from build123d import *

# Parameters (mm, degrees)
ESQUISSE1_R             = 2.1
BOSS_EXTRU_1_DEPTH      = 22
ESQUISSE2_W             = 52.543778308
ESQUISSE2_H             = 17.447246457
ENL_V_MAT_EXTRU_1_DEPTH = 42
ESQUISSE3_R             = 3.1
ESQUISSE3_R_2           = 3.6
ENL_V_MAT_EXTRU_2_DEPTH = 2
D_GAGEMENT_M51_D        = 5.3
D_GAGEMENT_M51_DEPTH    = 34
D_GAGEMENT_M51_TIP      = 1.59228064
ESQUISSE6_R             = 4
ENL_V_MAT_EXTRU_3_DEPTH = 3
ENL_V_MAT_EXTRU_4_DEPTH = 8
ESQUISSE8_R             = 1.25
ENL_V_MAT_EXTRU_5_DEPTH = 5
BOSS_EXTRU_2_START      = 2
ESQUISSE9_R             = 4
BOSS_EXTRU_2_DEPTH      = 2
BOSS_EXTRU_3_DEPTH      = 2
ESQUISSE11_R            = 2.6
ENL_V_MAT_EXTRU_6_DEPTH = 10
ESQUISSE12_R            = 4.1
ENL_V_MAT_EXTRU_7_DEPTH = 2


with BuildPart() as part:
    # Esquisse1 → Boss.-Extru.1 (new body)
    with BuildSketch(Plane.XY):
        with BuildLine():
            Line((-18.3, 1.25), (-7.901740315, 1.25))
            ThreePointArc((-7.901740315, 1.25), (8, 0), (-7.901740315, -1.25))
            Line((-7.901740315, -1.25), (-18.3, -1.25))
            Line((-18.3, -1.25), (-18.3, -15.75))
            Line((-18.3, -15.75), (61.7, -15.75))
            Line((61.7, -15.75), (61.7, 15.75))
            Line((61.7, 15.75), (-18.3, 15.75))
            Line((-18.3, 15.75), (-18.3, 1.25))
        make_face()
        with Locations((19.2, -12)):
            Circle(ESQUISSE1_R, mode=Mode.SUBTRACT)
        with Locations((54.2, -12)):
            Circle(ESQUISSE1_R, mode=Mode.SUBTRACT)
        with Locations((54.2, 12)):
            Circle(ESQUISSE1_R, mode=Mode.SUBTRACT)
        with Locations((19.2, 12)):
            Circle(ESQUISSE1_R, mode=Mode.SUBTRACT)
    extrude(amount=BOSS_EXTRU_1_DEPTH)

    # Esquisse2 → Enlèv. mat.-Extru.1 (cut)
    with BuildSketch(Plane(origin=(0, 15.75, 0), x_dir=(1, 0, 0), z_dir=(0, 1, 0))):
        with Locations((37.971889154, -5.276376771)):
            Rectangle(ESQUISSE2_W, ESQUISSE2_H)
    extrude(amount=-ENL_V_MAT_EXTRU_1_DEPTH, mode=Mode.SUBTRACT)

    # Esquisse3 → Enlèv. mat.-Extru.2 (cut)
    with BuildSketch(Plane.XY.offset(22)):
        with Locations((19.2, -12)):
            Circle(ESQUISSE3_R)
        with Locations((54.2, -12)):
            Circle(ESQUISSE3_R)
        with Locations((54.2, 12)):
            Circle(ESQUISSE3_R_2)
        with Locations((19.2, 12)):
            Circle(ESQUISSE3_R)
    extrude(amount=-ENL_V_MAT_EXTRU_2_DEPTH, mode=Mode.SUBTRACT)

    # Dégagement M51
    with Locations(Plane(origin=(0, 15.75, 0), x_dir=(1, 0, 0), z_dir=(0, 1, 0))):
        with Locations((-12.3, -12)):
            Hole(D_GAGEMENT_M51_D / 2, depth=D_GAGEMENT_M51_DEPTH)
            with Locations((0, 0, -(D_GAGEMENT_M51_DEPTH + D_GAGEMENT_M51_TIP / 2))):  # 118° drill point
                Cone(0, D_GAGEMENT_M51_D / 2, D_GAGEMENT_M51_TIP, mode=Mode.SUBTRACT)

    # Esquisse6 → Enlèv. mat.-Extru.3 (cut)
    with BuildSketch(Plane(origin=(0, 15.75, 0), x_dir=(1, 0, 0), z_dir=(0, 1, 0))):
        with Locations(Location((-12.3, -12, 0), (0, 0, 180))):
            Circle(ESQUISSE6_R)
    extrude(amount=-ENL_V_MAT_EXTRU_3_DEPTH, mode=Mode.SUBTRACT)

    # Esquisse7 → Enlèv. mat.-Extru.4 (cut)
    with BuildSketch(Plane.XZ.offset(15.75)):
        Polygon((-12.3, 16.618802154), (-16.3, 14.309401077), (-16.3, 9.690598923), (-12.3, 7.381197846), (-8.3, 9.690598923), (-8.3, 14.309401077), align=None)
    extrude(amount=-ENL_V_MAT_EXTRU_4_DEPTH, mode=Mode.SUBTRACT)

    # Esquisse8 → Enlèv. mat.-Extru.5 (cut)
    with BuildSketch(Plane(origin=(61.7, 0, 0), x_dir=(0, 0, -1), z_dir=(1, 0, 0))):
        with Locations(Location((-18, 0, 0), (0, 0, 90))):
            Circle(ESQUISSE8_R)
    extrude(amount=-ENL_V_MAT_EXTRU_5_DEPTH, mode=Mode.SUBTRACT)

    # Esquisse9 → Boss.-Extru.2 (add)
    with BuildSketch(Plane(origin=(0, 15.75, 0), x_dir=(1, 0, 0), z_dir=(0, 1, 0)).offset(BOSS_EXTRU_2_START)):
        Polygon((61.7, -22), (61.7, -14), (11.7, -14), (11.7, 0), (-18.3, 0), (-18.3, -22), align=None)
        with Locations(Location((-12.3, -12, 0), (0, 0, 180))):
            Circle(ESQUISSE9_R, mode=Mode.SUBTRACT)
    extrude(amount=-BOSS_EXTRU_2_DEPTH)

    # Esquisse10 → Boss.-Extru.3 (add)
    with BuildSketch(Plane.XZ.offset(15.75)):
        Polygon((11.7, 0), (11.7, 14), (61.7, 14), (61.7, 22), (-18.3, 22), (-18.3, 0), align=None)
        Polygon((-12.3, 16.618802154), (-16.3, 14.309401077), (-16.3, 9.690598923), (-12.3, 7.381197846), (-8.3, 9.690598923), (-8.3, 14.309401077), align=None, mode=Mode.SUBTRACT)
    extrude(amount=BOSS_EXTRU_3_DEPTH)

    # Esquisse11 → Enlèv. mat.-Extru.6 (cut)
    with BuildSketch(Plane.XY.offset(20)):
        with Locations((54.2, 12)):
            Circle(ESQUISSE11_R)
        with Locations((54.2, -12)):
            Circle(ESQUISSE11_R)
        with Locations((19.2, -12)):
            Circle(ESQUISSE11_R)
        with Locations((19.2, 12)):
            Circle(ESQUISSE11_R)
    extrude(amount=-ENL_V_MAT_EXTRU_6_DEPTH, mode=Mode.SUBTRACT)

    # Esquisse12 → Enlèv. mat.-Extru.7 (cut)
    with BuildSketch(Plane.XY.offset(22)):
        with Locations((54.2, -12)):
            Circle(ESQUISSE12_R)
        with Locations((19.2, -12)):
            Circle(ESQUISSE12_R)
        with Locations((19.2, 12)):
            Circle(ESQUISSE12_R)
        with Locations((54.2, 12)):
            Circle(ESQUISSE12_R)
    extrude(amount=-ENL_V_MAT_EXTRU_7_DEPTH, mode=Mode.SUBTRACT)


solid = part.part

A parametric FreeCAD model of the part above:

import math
import FreeCAD as App
import Part
import Sketcher
from FreeCAD import Vector
Q = App.Units.Quantity

doc = App.newDocument("Part")
params = doc.addObject("Spreadsheet::Sheet", "Params")
for row, (alias, value) in enumerate([
    ("sketch1_radius", "8 mm"),
    ("sketch1_diameter", "4.2 mm"),
    ("sketch1_width", "80 mm"),
    ("sketch1_height", "14.5 mm"),
    ("sketch1_height2", "31.5 mm"),
    ("pad1_length", "22 mm"),
    ("pocket1_length", "42 mm"),
    ("sketch3_diameter", "6.2 mm"),
    ("sketch3_diameter2", "7.2 mm"),
    ("pocket2_length", "2 mm"),
    ("sketch4_diameter", "5.3 mm"),
    ("hole_diameter", "5.3 mm"),
    ("hole_depth", "34 mm"),
    ("sketch5_diameter", "8 mm"),
    ("pocket3_length", "3 mm"),
    ("pocket4_length", "8 mm"),
    ("sketch7_diameter", "2.5 mm"),
    ("pocket5_length", "5 mm"),
    ("sketch8_diameter", "8 mm"),
    ("sketch8_width", "50 mm"),
    ("sketch8_width2", "30 mm"),
    ("sketch8_height", "8 mm"),
    ("sketch8_height2", "14 mm"),
    ("pad2_length", "2 mm"),
    ("sketch9_width", "50 mm"),
    ("sketch9_width2", "80 mm"),
    ("sketch9_height", "14 mm"),
    ("sketch9_height2", "8 mm"),
    ("pad3_length", "2 mm"),
    ("sketch10_diameter", "5.2 mm"),
    ("pocket6_length", "10 mm"),
    ("sketch11_diameter", "8.2 mm"),
    ("pocket7_length", "2 mm"),
], start=1):
    params.set(f"A{row}", alias)
    params.set(f"B{row}", "=" + value)
    params.setAlias(f"B{row}", alias)

body = doc.addObject("PartDesign::Body", "Body")

# Sketch on XY plane
sketch1 = body.newObject("Sketcher::SketchObject", "Sketch")
sketch1.AttachmentSupport = (doc.getObject("XY_Plane"), [""])
sketch1.MapMode = "FlatFace"
sketch1.addGeometry([
    Part.LineSegment(Vector(-18.3, 1.2, 0), Vector(-7.9, 1.2, 0)),  # 0
    Part.ArcOfCircle(Part.Circle(Vector(0, 0, 0), Vector(0, 0, 1), 8), math.radians(-171), math.radians(171)),  # 1
    Part.LineSegment(Vector(-7.9, -1.2, 0), Vector(-18.3, -1.2, 0)),  # 2
    Part.LineSegment(Vector(-18.3, -1.2, 0), Vector(-18.3, -15.8, 0)),  # 3
    Part.LineSegment(Vector(-18.3, -15.8, 0), Vector(61.7, -15.8, 0)),  # 4
    Part.LineSegment(Vector(61.7, -15.8, 0), Vector(61.7, 15.8, 0)),  # 5
    Part.LineSegment(Vector(61.7, 15.8, 0), Vector(-18.3, 15.8, 0)),  # 6
    Part.LineSegment(Vector(-18.3, 15.8, 0), Vector(-18.3, 1.2, 0)),  # 7
    Part.Circle(Vector(19.2, -12, 0), Vector(0, 0, 1), 2.1),  # 8
    Part.Circle(Vector(54.2, -12, 0), Vector(0, 0, 1), 2.1),  # 9
    Part.Circle(Vector(19.2, 12, 0), Vector(0, 0, 1), 2.1),  # 10
    Part.Circle(Vector(54.2, 12, 0), Vector(0, 0, 1), 2.1),  # 11
], False)
sketch1.addConstraint([
    Sketcher.Constraint("Coincident", 0, 2, 1, 2),
    Sketcher.Constraint("Coincident", 1, 1, 2, 1),
    Sketcher.Constraint("Coincident", 2, 2, 3, 1),
    Sketcher.Constraint("Coincident", 3, 2, 4, 1),
    Sketcher.Constraint("Coincident", 4, 2, 5, 1),
    Sketcher.Constraint("Coincident", 5, 2, 6, 1),
    Sketcher.Constraint("Coincident", 6, 2, 7, 1),
    Sketcher.Constraint("Coincident", 7, 2, 0, 1),
    Sketcher.Constraint("Horizontal", 0),
    Sketcher.Constraint("Horizontal", 2),
    Sketcher.Constraint("Vertical", 3),
    Sketcher.Constraint("Horizontal", 4),
    Sketcher.Constraint("Vertical", 5),
    Sketcher.Constraint("Horizontal", 6),
    Sketcher.Constraint("Vertical", 7),
    Sketcher.Constraint("Coincident", 1, 3, -1, 1),
    Sketcher.Constraint("Equal", 8, 9),
    Sketcher.Constraint("Equal", 9, 10),
    Sketcher.Constraint("Equal", 10, 11),
    Sketcher.Constraint("Symmetric", 8, 3, 10, 3, -1),
    Sketcher.Constraint("Symmetric", 9, 3, 11, 3, -1),
    Sketcher.Constraint("Symmetric", 3, 2, 6, 2, -1),
    Sketcher.Constraint("Horizontal", 8, 3, 9, 3),
    Sketcher.Constraint("Vertical", 0, 2, 1, 1),
    Sketcher.Constraint("Radius", 1, 8.0),
    Sketcher.Constraint("Diameter", 8, 4.2),
    Sketcher.Constraint("DistanceX", 4, 1, 4, 2, 80.0),
    Sketcher.Constraint("DistanceY", 3, 2, 3, 1, 14.5),
    Sketcher.Constraint("DistanceY", 5, 1, 5, 2, 31.5),
    Sketcher.Constraint("DistanceY", 8, 3, -1, 1, 12.0),
    Sketcher.Constraint("DistanceX", 8, 3, 9, 3, 35.0),
    Sketcher.Constraint("DistanceX", -1, 1, 8, 3, 19.2),
    Sketcher.Constraint("DistanceX", 2, 2, -1, 1, 18.3),
])
sketch1.setExpression("Constraints[24]", "Params.sketch1_radius")
sketch1.setExpression("Constraints[25]", "Params.sketch1_diameter")
sketch1.setExpression("Constraints[26]", "Params.sketch1_width")
sketch1.setExpression("Constraints[27]", "Params.sketch1_height")
sketch1.setExpression("Constraints[28]", "Params.sketch1_height2")
pad1 = body.newObject("PartDesign::Pad", "Pad")
pad1.Profile = sketch1
pad1.setExpression("Length", "Params.pad1_length")

# Sketch on XZ plane
sketch2 = body.newObject("Sketcher::SketchObject", "Sketch001")
sketch2.AttachmentSupport = (doc.getObject("XZ_Plane"), [""])
sketch2.MapMode = "FlatFace"
sketch2.AttachmentOffset = App.Placement(Vector(0, 0, -15.75), App.Rotation())
sketch2.addGeometry([
    Part.LineSegment(Vector(12, -3, 0), Vector(12, 14, 0)),
    Part.LineSegment(Vector(12, 14, 0), Vector(64, 14, 0)),
    Part.LineSegment(Vector(64, 14, 0), Vector(64, -3, 0)),
    Part.LineSegment(Vector(64, -3, 0), Vector(12, -3, 0)),
], False)
sketch2.addConstraint([
    Sketcher.Constraint("Coincident", 0, 2, 1, 1),
    Sketcher.Constraint("Coincident", 1, 2, 2, 1),
    Sketcher.Constraint("Coincident", 2, 2, 3, 1),
    Sketcher.Constraint("Coincident", 3, 2, 0, 1),
    Sketcher.Constraint("Vertical", 0),
    Sketcher.Constraint("Horizontal", 1),
    Sketcher.Constraint("Vertical", 2),
    Sketcher.Constraint("Horizontal", 3),
    Sketcher.Constraint("DistanceY", -1, 1, 0, 2, 14.0),
    Sketcher.Constraint("DistanceX", -1, 1, 0, 2, 11.7),
    Sketcher.Constraint("DistanceX", 1, 1, 1, 2, 52.543778),
    Sketcher.Constraint("DistanceY", 0, 1, 0, 2, 17.447246),
])
pocket1 = body.newObject("PartDesign::Pocket", "Pocket")
pocket1.Profile = sketch2
pocket1.setExpression("Length", "Params.pocket1_length")
pocket1.Reversed = True

# Sketch on XY plane
sketch3 = body.newObject("Sketcher::SketchObject", "Sketch002")
sketch3.AttachmentSupport = (doc.getObject("XY_Plane"), [""])
sketch3.MapMode = "FlatFace"
sketch3.AttachmentOffset = App.Placement(Vector(0, 0, 22), App.Rotation())
sketch3.addGeometry([
    Part.Circle(Vector(19.2, -12, 0), Vector(0, 0, 1), 3.1),
    Part.Circle(Vector(54.2, -12, 0), Vector(0, 0, 1), 3.1),
    Part.Circle(Vector(54.2, 12, 0), Vector(0, 0, 1), 3.6),
    Part.Circle(Vector(19.2, 12, 0), Vector(0, 0, 1), 3.1),
], False)
sketch3.addConstraint([
    Sketcher.Constraint("Equal", 0, 1),
    Sketcher.Constraint("Equal", 1, 3),
    Sketcher.Constraint("Symmetric", 1, 3, 2, 3, -1),
    Sketcher.Constraint("Symmetric", 0, 3, 3, 3, -1),
    Sketcher.Constraint("Horizontal", 0, 3, 1, 3),
    Sketcher.Constraint("Diameter", 0, 6.2),
    Sketcher.Constraint("Diameter", 2, 7.2),
    Sketcher.Constraint("DistanceY", 0, 3, -1, 1, 12.0),
    Sketcher.Constraint("DistanceX", 0, 3, 1, 3, 35.0),
    Sketcher.Constraint("DistanceX", -1, 1, 0, 3, 19.2),
])
sketch3.setExpression("Constraints[5]", "Params.sketch3_diameter")
sketch3.setExpression("Constraints[6]", "Params.sketch3_diameter2")
pocket2 = body.newObject("PartDesign::Pocket", "Pocket001")
pocket2.Profile = sketch3
pocket2.setExpression("Length", "Params.pocket2_length")

# Sketch on XZ plane
sketch4 = body.newObject("Sketcher::SketchObject", "Sketch003")
sketch4.AttachmentSupport = (doc.getObject("XZ_Plane"), [""])
sketch4.MapMode = "FlatFace"
sketch4.AttachmentOffset = App.Placement(Vector(0, 0, -15.75), App.Rotation())
sketch4.addGeometry(Part.Circle(Vector(-12.3, 12, 0), Vector(0, 0, 1), 2.6), False)
sketch4.addConstraint([
    Sketcher.Constraint("Diameter", 0, 5.3),
    Sketcher.Constraint("DistanceY", -1, 1, 0, 3, 12.0),
    Sketcher.Constraint("DistanceX", 0, 3, -1, 1, 12.3),
])
sketch4.setExpression("Constraints[0]", "Params.sketch4_diameter")
doc.recompute()
hole = body.newObject("PartDesign::Hole", "Hole")
hole.Profile = sketch4
hole.ThreadType = "None"
hole.setExpression("Diameter", "Params.hole_diameter")
hole.DepthType = "Dimension"
hole.setExpression("Depth", "Params.hole_depth")
hole.DrillPoint = "Angled"
hole.DrillPointAngle = 118
hole.Reversed = True

# Sketch on XZ plane
sketch5 = body.newObject("Sketcher::SketchObject", "Sketch004")
sketch5.AttachmentSupport = (doc.getObject("XZ_Plane"), [""])
sketch5.MapMode = "FlatFace"
sketch5.AttachmentOffset = App.Placement(Vector(0, 0, -15.75), App.Rotation())
sketch5.addGeometry(Part.Circle(Vector(-12.3, 12, 0), Vector(0, 0, 1), 4), False)
sketch5.addConstraint([
    Sketcher.Constraint("Diameter", 0, 8.0),
    Sketcher.Constraint("DistanceY", -1, 1, 0, 3, 12.0),
    Sketcher.Constraint("DistanceX", 0, 3, -1, 1, 12.3),
])
sketch5.setExpression("Constraints[0]", "Params.sketch5_diameter")
pocket3 = body.newObject("PartDesign::Pocket", "Pocket002")
pocket3.Profile = sketch5
pocket3.setExpression("Length", "Params.pocket3_length")
pocket3.Reversed = True

# Sketch on XZ plane
sketch6 = body.newObject("Sketcher::SketchObject", "Sketch005")
sketch6.AttachmentSupport = (doc.getObject("XZ_Plane"), [""])
sketch6.MapMode = "FlatFace"
sketch6.AttachmentOffset = App.Placement(Vector(0, 0, 15.75), App.Rotation())
sketch6.addGeometry([
    Part.LineSegment(Vector(-12.3, 16.6, 0), Vector(-16.3, 14.3, 0)),  # 0
    Part.LineSegment(Vector(-16.3, 14.3, 0), Vector(-16.3, 9.7, 0)),  # 1
    Part.LineSegment(Vector(-16.3, 9.7, 0), Vector(-12.3, 7.4, 0)),  # 2
    Part.LineSegment(Vector(-12.3, 7.4, 0), Vector(-8.3, 9.7, 0)),  # 3
    Part.LineSegment(Vector(-8.3, 9.7, 0), Vector(-8.3, 14.3, 0)),  # 4
    Part.LineSegment(Vector(-8.3, 14.3, 0), Vector(-12.3, 16.6, 0)),  # 5
], False)
sketch6.addConstraint([
    Sketcher.Constraint("Coincident", 0, 2, 1, 1),
    Sketcher.Constraint("Coincident", 1, 2, 2, 1),
    Sketcher.Constraint("Coincident", 2, 2, 3, 1),
    Sketcher.Constraint("Coincident", 3, 2, 4, 1),
    Sketcher.Constraint("Coincident", 4, 2, 5, 1),
    Sketcher.Constraint("Coincident", 5, 2, 0, 1),
    Sketcher.Constraint("Vertical", 1),
    Sketcher.Constraint("Vertical", 4),
    Sketcher.Constraint("Parallel", 0, 3),
    Sketcher.Constraint("Parallel", 2, 5),
    Sketcher.Constraint("Horizontal", 1, 2, 3, 2),
    Sketcher.Constraint("Horizontal", 0, 2, 4, 2),
    Sketcher.Constraint("Vertical", 2, 2, 5, 2),
    Sketcher.Constraint("Angle", 0, Q("-150 deg")),
    Sketcher.Constraint("DistanceX", 1, 2, 2, 2, 4.0),
    Sketcher.Constraint("DistanceX", 0, 2, -1, 1, 16.3),
    Sketcher.Constraint("DistanceY", -1, 1, 0, 2, 14.309401),
    Sketcher.Constraint("DistanceY", -1, 1, 1, 2, 9.690599),
])
pocket4 = body.newObject("PartDesign::Pocket", "Pocket003")
pocket4.Profile = sketch6
pocket4.setExpression("Length", "Params.pocket4_length")

# Sketch on YZ plane
sketch7 = body.newObject("Sketcher::SketchObject", "Sketch006")
sketch7.AttachmentSupport = (doc.getObject("YZ_Plane"), [""])
sketch7.MapMode = "FlatFace"
sketch7.AttachmentOffset = App.Placement(Vector(0, 0, 61.7), App.Rotation())
sketch7.addGeometry(Part.Circle(Vector(0, 18, 0), Vector(0, 0, 1), 1.2), False)
sketch7.addConstraint([
    Sketcher.Constraint("PointOnObject", 0, 3, -2),
    Sketcher.Constraint("Diameter", 0, 2.5),
    Sketcher.Constraint("DistanceY", -1, 1, 0, 3, 18.0),
])
sketch7.setExpression("Constraints[1]", "Params.sketch7_diameter")
pocket5 = body.newObject("PartDesign::Pocket", "Pocket004")
pocket5.Profile = sketch7
pocket5.setExpression("Length", "Params.pocket5_length")

# Sketch on XZ plane
sketch8 = body.newObject("Sketcher::SketchObject", "Sketch007")
sketch8.AttachmentSupport = (doc.getObject("XZ_Plane"), [""])
sketch8.MapMode = "FlatFace"
sketch8.AttachmentOffset = App.Placement(Vector(0, 0, -17.75), App.Rotation())
sketch8.addGeometry([
    Part.LineSegment(Vector(61.7, 22, 0), Vector(61.7, 14, 0)),  # 0
    Part.LineSegment(Vector(61.7, 14, 0), Vector(11.7, 14, 0)),  # 1
    Part.LineSegment(Vector(11.7, 14, 0), Vector(11.7, 0, 0)),  # 2
    Part.LineSegment(Vector(11.7, 0, 0), Vector(-18.3, 0, 0)),  # 3
    Part.LineSegment(Vector(-18.3, 0, 0), Vector(-18.3, 22, 0)),  # 4
    Part.LineSegment(Vector(-18.3, 22, 0), Vector(61.7, 22, 0)),  # 5
    Part.Circle(Vector(-12.3, 12, 0), Vector(0, 0, 1), 4),  # 6
], False)
sketch8.addConstraint([
    Sketcher.Constraint("Coincident", 0, 2, 1, 1),
    Sketcher.Constraint("Coincident", 1, 2, 2, 1),
    Sketcher.Constraint("Coincident", 2, 2, 3, 1),
    Sketcher.Constraint("Coincident", 3, 2, 4, 1),
    Sketcher.Constraint("Coincident", 4, 2, 5, 1),
    Sketcher.Constraint("Coincident", 5, 2, 0, 1),
    Sketcher.Constraint("Vertical", 0),
    Sketcher.Constraint("Horizontal", 1),
    Sketcher.Constraint("Vertical", 2),
    Sketcher.Constraint("Horizontal", 3),
    Sketcher.Constraint("Vertical", 4),
    Sketcher.Constraint("Horizontal", 5),
    Sketcher.Constraint("PointOnObject", 2, 2, -1),
    Sketcher.Constraint("Diameter", 6, 8.0),
    Sketcher.Constraint("DistanceX", 1, 2, 1, 1, 50.0),
    Sketcher.Constraint("DistanceX", 3, 2, 3, 1, 30.0),
    Sketcher.Constraint("DistanceY", 0, 2, 0, 1, 8.0),
    Sketcher.Constraint("DistanceY", 2, 2, 2, 1, 14.0),
    Sketcher.Constraint("DistanceY", -1, 1, 6, 3, 12.0),
    Sketcher.Constraint("DistanceX", 6, 3, 0, 2, 74.0),
    Sketcher.Constraint("DistanceX", 6, 3, -1, 1, 12.3),
])
sketch8.setExpression("Constraints[13]", "Params.sketch8_diameter")
sketch8.setExpression("Constraints[14]", "Params.sketch8_width")
sketch8.setExpression("Constraints[15]", "Params.sketch8_width2")
sketch8.setExpression("Constraints[16]", "Params.sketch8_height")
sketch8.setExpression("Constraints[17]", "Params.sketch8_height2")
pad2 = body.newObject("PartDesign::Pad", "Pad001")
pad2.Profile = sketch8
pad2.setExpression("Length", "Params.pad2_length")

# Sketch on XZ plane
sketch9 = body.newObject("Sketcher::SketchObject", "Sketch008")
sketch9.AttachmentSupport = (doc.getObject("XZ_Plane"), [""])
sketch9.MapMode = "FlatFace"
sketch9.AttachmentOffset = App.Placement(Vector(0, 0, 15.75), App.Rotation())
sketch9.addGeometry([
    Part.LineSegment(Vector(11.7, 0, 0), Vector(11.7, 14, 0)),  # 0
    Part.LineSegment(Vector(11.7, 14, 0), Vector(61.7, 14, 0)),  # 1
    Part.LineSegment(Vector(61.7, 14, 0), Vector(61.7, 22, 0)),  # 2
    Part.LineSegment(Vector(61.7, 22, 0), Vector(-18.3, 22, 0)),  # 3
    Part.LineSegment(Vector(-18.3, 22, 0), Vector(-18.3, 0, 0)),  # 4
    Part.LineSegment(Vector(-18.3, 0, 0), Vector(11.7, 0, 0)),  # 5
    Part.LineSegment(Vector(-16.3, 14.3, 0), Vector(-12.3, 16.6, 0)),  # 6
    Part.LineSegment(Vector(-12.3, 16.6, 0), Vector(-8.3, 14.3, 0)),  # 7
    Part.LineSegment(Vector(-8.3, 14.3, 0), Vector(-8.3, 9.7, 0)),  # 8
    Part.LineSegment(Vector(-8.3, 9.7, 0), Vector(-12.3, 7.4, 0)),  # 9
    Part.LineSegment(Vector(-12.3, 7.4, 0), Vector(-16.3, 9.7, 0)),  # 10
    Part.LineSegment(Vector(-16.3, 9.7, 0), Vector(-16.3, 14.3, 0)),  # 11
], False)
sketch9.addConstraint([
    Sketcher.Constraint("Coincident", 0, 2, 1, 1),
    Sketcher.Constraint("Coincident", 1, 2, 2, 1),
    Sketcher.Constraint("Coincident", 2, 2, 3, 1),
    Sketcher.Constraint("Coincident", 3, 2, 4, 1),
    Sketcher.Constraint("Coincident", 4, 2, 5, 1),
    Sketcher.Constraint("Coincident", 5, 2, 0, 1),
    Sketcher.Constraint("Coincident", 6, 2, 7, 1),
    Sketcher.Constraint("Coincident", 7, 2, 8, 1),
    Sketcher.Constraint("Coincident", 8, 2, 9, 1),
    Sketcher.Constraint("Coincident", 9, 2, 10, 1),
    Sketcher.Constraint("Coincident", 10, 2, 11, 1),
    Sketcher.Constraint("Coincident", 11, 2, 6, 1),
    Sketcher.Constraint("Vertical", 0),
    Sketcher.Constraint("Horizontal", 1),
    Sketcher.Constraint("Vertical", 2),
    Sketcher.Constraint("Horizontal", 3),
    Sketcher.Constraint("Vertical", 4),
    Sketcher.Constraint("Horizontal", 5),
    Sketcher.Constraint("Vertical", 8),
    Sketcher.Constraint("Vertical", 11),
    Sketcher.Constraint("PointOnObject", 4, 2, -1),
    Sketcher.Constraint("Parallel", 6, 9),
    Sketcher.Constraint("Parallel", 7, 10),
    Sketcher.Constraint("Horizontal", 8, 2, 10, 2),
    Sketcher.Constraint("Horizontal", 7, 2, 11, 2),
    Sketcher.Constraint("Vertical", 6, 2, 9, 2),
    Sketcher.Constraint("DistanceX", 1, 1, 1, 2, 50.0),
    Sketcher.Constraint("DistanceX", 3, 2, 3, 1, 80.0),
    Sketcher.Constraint("DistanceY", 0, 1, 0, 2, 14.0),
    Sketcher.Constraint("DistanceY", 2, 1, 2, 2, 8.0),
    Sketcher.Constraint("Angle", 6, Q("30 deg")),
    Sketcher.Constraint("DistanceX", 3, 2, 6, 2, 6.0),
    Sketcher.Constraint("DistanceX", 6, 2, 7, 2, 4.0),
    Sketcher.Constraint("DistanceX", -1, 1, 0, 2, 11.7),
    Sketcher.Constraint("DistanceY", -1, 1, 7, 2, 14.309401),
    Sketcher.Constraint("DistanceY", -1, 1, 8, 2, 9.690599),
])
sketch9.setExpression("Constraints[26]", "Params.sketch9_width")
sketch9.setExpression("Constraints[27]", "Params.sketch9_width2")
sketch9.setExpression("Constraints[28]", "Params.sketch9_height")
sketch9.setExpression("Constraints[29]", "Params.sketch9_height2")
pad3 = body.newObject("PartDesign::Pad", "Pad002")
pad3.Profile = sketch9
pad3.setExpression("Length", "Params.pad3_length")

# Sketch on XY plane
sketch10 = body.newObject("Sketcher::SketchObject", "Sketch009")
sketch10.AttachmentSupport = (doc.getObject("XY_Plane"), [""])
sketch10.MapMode = "FlatFace"
sketch10.AttachmentOffset = App.Placement(Vector(0, 0, 20), App.Rotation())
sketch10.addGeometry([
    Part.Circle(Vector(54.2, 12, 0), Vector(0, 0, 1), 2.6),
    Part.Circle(Vector(54.2, -12, 0), Vector(0, 0, 1), 2.6),
    Part.Circle(Vector(19.2, -12, 0), Vector(0, 0, 1), 2.6),
    Part.Circle(Vector(19.2, 12, 0), Vector(0, 0, 1), 2.6),
], False)
sketch10.addConstraint([
    Sketcher.Constraint("Equal", 0, 1),
    Sketcher.Constraint("Equal", 1, 2),
    Sketcher.Constraint("Equal", 2, 3),
    Sketcher.Constraint("Symmetric", 0, 3, 1, 3, -1),
    Sketcher.Constraint("Symmetric", 2, 3, 3, 3, -1),
    Sketcher.Constraint("Horizontal", 1, 3, 2, 3),
    Sketcher.Constraint("Diameter", 0, 5.2),
    Sketcher.Constraint("DistanceY", -1, 1, 0, 3, 12.0),
    Sketcher.Constraint("DistanceX", 2, 3, 1, 3, 35.0),
    Sketcher.Constraint("DistanceX", -1, 1, 0, 3, 54.2),
])
sketch10.setExpression("Constraints[6]", "Params.sketch10_diameter")
pocket6 = body.newObject("PartDesign::Pocket", "Pocket005")
pocket6.Profile = sketch10
pocket6.setExpression("Length", "Params.pocket6_length")

# Sketch on XY plane
sketch11 = body.newObject("Sketcher::SketchObject", "Sketch010")
sketch11.AttachmentSupport = (doc.getObject("XY_Plane"), [""])
sketch11.MapMode = "FlatFace"
sketch11.AttachmentOffset = App.Placement(Vector(0, 0, 22), App.Rotation())
sketch11.addGeometry([
    Part.Circle(Vector(54.2, -12, 0), Vector(0, 0, 1), 4.1),
    Part.Circle(Vector(19.2, -12, 0), Vector(0, 0, 1), 4.1),
    Part.Circle(Vector(19.2, 12, 0), Vector(0, 0, 1), 4.1),
    Part.Circle(Vector(54.2, 12, 0), Vector(0, 0, 1), 4.1),
], False)
sketch11.addConstraint([
    Sketcher.Constraint("Equal", 0, 1),
    Sketcher.Constraint("Equal", 1, 2),
    Sketcher.Constraint("Equal", 2, 3),
    Sketcher.Constraint("Symmetric", 1, 3, 2, 3, -1),
    Sketcher.Constraint("Symmetric", 0, 3, 3, 3, -1),
    Sketcher.Constraint("Horizontal", 0, 3, 1, 3),
    Sketcher.Constraint("Diameter", 0, 8.2),
    Sketcher.Constraint("DistanceY", 0, 3, -1, 1, 12.0),
    Sketcher.Constraint("DistanceX", 1, 3, 0, 3, 35.0),
    Sketcher.Constraint("DistanceX", -1, 1, 0, 3, 54.2),
])
sketch11.setExpression("Constraints[6]", "Params.sketch11_diameter")
pocket7 = body.newObject("PartDesign::Pocket", "Pocket006")
pocket7.Profile = sketch11
pocket7.setExpression("Length", "Params.pocket7_length")

doc.recompute()
